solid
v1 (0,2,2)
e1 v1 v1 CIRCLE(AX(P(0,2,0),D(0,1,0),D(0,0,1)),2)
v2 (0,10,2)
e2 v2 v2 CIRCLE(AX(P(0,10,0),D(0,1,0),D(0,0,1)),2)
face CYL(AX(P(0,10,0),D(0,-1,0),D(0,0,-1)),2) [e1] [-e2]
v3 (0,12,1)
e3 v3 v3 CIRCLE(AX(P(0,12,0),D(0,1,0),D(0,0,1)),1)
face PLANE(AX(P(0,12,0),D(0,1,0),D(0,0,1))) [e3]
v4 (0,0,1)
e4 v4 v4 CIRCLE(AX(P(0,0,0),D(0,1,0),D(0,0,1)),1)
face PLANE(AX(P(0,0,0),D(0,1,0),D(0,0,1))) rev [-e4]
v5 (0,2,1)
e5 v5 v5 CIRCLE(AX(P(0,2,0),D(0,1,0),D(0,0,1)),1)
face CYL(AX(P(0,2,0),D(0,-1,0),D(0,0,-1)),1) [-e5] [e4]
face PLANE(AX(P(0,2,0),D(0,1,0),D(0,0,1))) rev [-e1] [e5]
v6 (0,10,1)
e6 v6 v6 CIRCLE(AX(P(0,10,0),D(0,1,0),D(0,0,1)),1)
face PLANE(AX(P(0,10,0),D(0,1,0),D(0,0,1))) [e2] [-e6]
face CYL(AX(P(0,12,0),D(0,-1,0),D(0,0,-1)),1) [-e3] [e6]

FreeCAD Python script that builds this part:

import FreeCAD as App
import Part
import Sketcher
from FreeCAD import Vector

doc = App.newDocument("Part")
body = doc.addObject("PartDesign::Body", "Body")

sketch1 = doc.addObject("Sketcher::SketchObject", "Sketch")
body.addObject(sketch1)
sketch1.AttachmentSupport = (doc.XZ_Plane, [""])
sketch1.MapMode = "FlatFace"
sketch1.addGeometry(Part.Circle(Vector(0, 0, 0), Vector(0, 0, 1), 1), False)
sketch1.addConstraint([
    Sketcher.Constraint("Coincident", 0, 3, -1, 1),
    Sketcher.Constraint("Diameter", 0, 2.0),
])
pad1 = doc.addObject("PartDesign::Pad", "Pad")
body.addObject(pad1)
pad1.Profile = sketch1
pad1.Length = 2
pad1.Reversed = True

sketch2 = doc.addObject("Sketcher::SketchObject", "Sketch001")
body.addObject(sketch2)
sketch2.AttachmentSupport = (doc.XZ_Plane, [""])
sketch2.MapMode = "FlatFace"
sketch2.AttachmentOffset = App.Placement(Vector(0, 0, -2), App.Rotation())
sketch2.addGeometry(Part.Circle(Vector(0, 0, 0), Vector(0, 0, 1), 2), False)
sketch2.addConstraint([
    Sketcher.Constraint("Coincident", 0, 3, -1, 1),
    Sketcher.Constraint("Diameter", 0, 4.0),
])
pad2 = doc.addObject("PartDesign::Pad", "Pad001")
body.addObject(pad2)
pad2.Profile = sketch2
pad2.Length = 8
pad2.Reversed = True

sketch3 = doc.addObject("Sketcher::SketchObject", "Sketch002")
body.addObject(sketch3)
sketch3.AttachmentSupport = (doc.XZ_Plane, [""])
sketch3.MapMode = "FlatFace"
sketch3.AttachmentOffset = App.Placement(Vector(0, 0, -10), App.Rotation())
sketch3.addGeometry(Part.Circle(Vector(0, 0, 0), Vector(0, 0, 1), 1), False)
sketch3.addConstraint([
    Sketcher.Constraint("Coincident", 0, 3, -1, 1),
    Sketcher.Constraint("Diameter", 0, 2.0),
])
pad3 = doc.addObject("PartDesign::Pad", "Pad002")
body.addObject(pad3)
pad3.Profile = sketch3
pad3.Length = 2
pad3.Reversed = True

doc.recompute()
